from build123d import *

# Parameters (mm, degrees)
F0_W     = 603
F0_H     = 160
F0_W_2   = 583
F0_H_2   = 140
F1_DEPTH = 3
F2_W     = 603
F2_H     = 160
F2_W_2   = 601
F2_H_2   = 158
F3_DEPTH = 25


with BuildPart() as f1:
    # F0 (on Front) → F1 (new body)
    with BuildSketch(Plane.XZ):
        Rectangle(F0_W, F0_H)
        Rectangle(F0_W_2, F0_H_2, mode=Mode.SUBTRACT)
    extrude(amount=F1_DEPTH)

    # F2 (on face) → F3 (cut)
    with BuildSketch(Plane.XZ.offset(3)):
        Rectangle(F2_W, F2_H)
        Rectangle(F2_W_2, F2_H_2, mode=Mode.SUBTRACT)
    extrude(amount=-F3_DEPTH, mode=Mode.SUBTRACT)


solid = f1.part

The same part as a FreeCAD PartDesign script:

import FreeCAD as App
import Part
import Sketcher

V = App.Vector


def add_polygon(sketch, points):
    """Adds a closed chain of lines whose ends are joined by coincident constraints."""
    first, n = sketch.GeometryCount, len(points)
    for a, b in zip(points, points[1:] + points[:1]):
        sketch.addGeometry(Part.LineSegment(App.Vector(*a, 0), App.Vector(*b, 0)), False)
    for i in range(n):
        sketch.addConstraint(Sketcher.Constraint("Coincident", first + i, 2, first + (i + 1) % n, 1))

doc = App.newDocument("Part")
body = doc.addObject("PartDesign::Body", "Body")

sketch1 = body.newObject("Sketcher::SketchObject", "Sketch")
sketch1.AttachmentSupport = (doc.getObject("XZ_Plane"), [""])
sketch1.MapMode = "FlatFace"
add_polygon(sketch1, [(-302, 80), (-302, -80), (302, -80), (302, 80)])
add_polygon(sketch1, [(292, -70), (-292, -70), (-292, 70), (292, 70)])
sketch1.addConstraint([
    Sketcher.Constraint("Vertical", 0),
    Sketcher.Constraint("Horizontal", 1),
    Sketcher.Constraint("Vertical", 2),
    Sketcher.Constraint("Horizontal", 3),
    Sketcher.Constraint("Horizontal", 4),
    Sketcher.Constraint("Vertical", 5),
    Sketcher.Constraint("Horizontal", 6),
    Sketcher.Constraint("Vertical", 7),
    Sketcher.Constraint("Symmetric", 0, 2, 2, 2, -1, 1),
    Sketcher.Constraint("Symmetric", 4, 2, 6, 2, -1, 1),
    Sketcher.Constraint("DistanceX", 1, 1, 1, 2, 603.0),
    Sketcher.Constraint("DistanceX", 4, 2, 4, 1, 583.0),
    Sketcher.Constraint("DistanceY", 0, 2, 0, 1, 160.0),
    Sketcher.Constraint("DistanceY", 5, 1, 5, 2, 140.0),
])
pad1 = body.newObject("PartDesign::Pad", "Pad")
pad1.Profile = sketch1
pad1.Length = 3

sketch2 = body.newObject("Sketcher::SketchObject", "Sketch001")
sketch2.AttachmentSupport = (doc.getObject("XZ_Plane"), [""])
sketch2.MapMode = "FlatFace"
sketch2.AttachmentOffset = App.Placement(V(0, 0, 3), App.Rotation())
add_polygon(sketch2, [(-302, 80), (-302, -80), (302, -80), (302, 80)])
add_polygon(sketch2, [(300, -79), (-300, -79), (-300, 79), (300, 79)])
sketch2.addConstraint([
    Sketcher.Constraint("Vertical", 0),
    Sketcher.Constraint("Horizontal", 1),
    Sketcher.Constraint("Vertical", 2),
    Sketcher.Constraint("Horizontal", 3),
    Sketcher.Constraint("Horizontal", 4),
    Sketcher.Constraint("Vertical", 5),
    Sketcher.Constraint("Horizontal", 6),
    Sketcher.Constraint("Vertical", 7),
    Sketcher.Constraint("Symmetric", 0, 2, 2, 2, -1, 1),
    Sketcher.Constraint("Symmetric", 4, 2, 6, 2, -1, 1),
    Sketcher.Constraint("DistanceX", 1, 1, 1, 2, 603.0),
    Sketcher.Constraint("DistanceX", 4, 2, 4, 1, 601.0),
    Sketcher.Constraint("DistanceY", 0, 2, 0, 1, 160.0),
    Sketcher.Constraint("DistanceY", 5, 1, 5, 2, 158.0),
])
pocket1 = body.newObject("PartDesign::Pocket", "Pocket")
pocket1.Profile = sketch2
pocket1.Length = 25

doc.recompute()
